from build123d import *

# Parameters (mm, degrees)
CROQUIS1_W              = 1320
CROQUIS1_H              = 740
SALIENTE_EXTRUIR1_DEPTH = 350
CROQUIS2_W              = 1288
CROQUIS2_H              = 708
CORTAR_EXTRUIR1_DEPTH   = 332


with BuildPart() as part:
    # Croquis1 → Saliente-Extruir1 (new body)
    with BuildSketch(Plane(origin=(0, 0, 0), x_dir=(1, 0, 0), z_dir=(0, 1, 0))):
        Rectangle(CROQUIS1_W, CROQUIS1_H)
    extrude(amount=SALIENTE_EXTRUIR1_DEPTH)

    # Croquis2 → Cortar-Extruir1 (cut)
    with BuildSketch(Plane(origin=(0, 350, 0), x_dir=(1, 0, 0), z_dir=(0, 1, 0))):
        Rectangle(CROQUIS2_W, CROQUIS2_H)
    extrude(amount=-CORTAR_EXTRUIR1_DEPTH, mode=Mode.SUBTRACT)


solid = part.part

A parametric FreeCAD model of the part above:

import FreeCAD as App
import Part
import Sketcher
Q = App.Units.Quantity

doc = App.newDocument("Part")
body = doc.addObject("PartDesign::Body", "Body")

sketch1 = body.newObject("Sketcher::SketchObject", "Sketch")
sketch1.AttachmentSupport = (doc.getObject("XZ_Plane"), [""])
sketch1.MapMode = "FlatFace"
sketch1.addGeometry([
    Part.LineSegment(App.Vector(-660, -370, 0), App.Vector(-660, 370, 0)),
    Part.LineSegment(App.Vector(-660, 370, 0), App.Vector(660, 370, 0)),
    Part.LineSegment(App.Vector(660, 370, 0), App.Vector(660, -370, 0)),
    Part.LineSegment(App.Vector(660, -370, 0), App.Vector(-660, -370, 0)),
], False)
sketch1.addConstraint([
    Sketcher.Constraint("Coincident", 0, 2, 1, 1),
    Sketcher.Constraint("Coincident", 1, 2, 2, 1),
    Sketcher.Constraint("Coincident", 2, 2, 3, 1),
    Sketcher.Constraint("Coincident", 3, 2, 0, 1),
    Sketcher.Constraint("Vertical", 0),
    Sketcher.Constraint("Horizontal", 1),
    Sketcher.Constraint("Vertical", 2),
    Sketcher.Constraint("Horizontal", 3),
    Sketcher.Constraint("Symmetric", 0, 2, 2, 2, -1, 1),
    Sketcher.Constraint("DistanceX", 1, 1, 1, 2, Q("1320 mm")),
    Sketcher.Constraint("DistanceY", 0, 1, 0, 2, Q("740 mm")),
])
pad1 = body.newObject("PartDesign::Pad", "Pad")
pad1.Profile = sketch1
pad1.Length = 350
pad1.Reversed = True

sketch2 = body.newObject("Sketcher::SketchObject", "Sketch001")
sketch2.AttachmentSupport = (doc.getObject("XZ_Plane"), [""])
sketch2.MapMode = "FlatFace"
sketch2.AttachmentOffset = App.Placement(App.Vector(0, 0, -350), App.Rotation())
sketch2.addGeometry([
    Part.LineSegment(App.Vector(-644, -354, 0), App.Vector(-644, 354, 0)),
    Part.LineSegment(App.Vector(-644, 354, 0), App.Vector(644, 354, 0)),
    Part.LineSegment(App.Vector(644, 354, 0), App.Vector(644, -354, 0)),
    Part.LineSegment(App.Vector(644, -354, 0), App.Vector(-644, -354, 0)),
], False)
sketch2.addConstraint([
    Sketcher.Constraint("Coincident", 0, 2, 1, 1),
    Sketcher.Constraint("Coincident", 1, 2, 2, 1),
    Sketcher.Constraint("Coincident", 2, 2, 3, 1),
    Sketcher.Constraint("Coincident", 3, 2, 0, 1),
    Sketcher.Constraint("Vertical", 0),
    Sketcher.Constraint("Horizontal", 1),
    Sketcher.Constraint("Vertical", 2),
    Sketcher.Constraint("Horizontal", 3),
    Sketcher.Constraint("Symmetric", 0, 2, 2, 2, -1, 1),
    Sketcher.Constraint("DistanceX", 1, 1, 1, 2, Q("1288 mm")),
    Sketcher.Constraint("DistanceY", 0, 1, 0, 2, Q("708 mm")),
])
pocket1 = body.newObject("PartDesign::Pocket", "Pocket")
pocket1.Profile = sketch2
pocket1.Length = 332
pocket1.Reversed = True

doc.recompute()
